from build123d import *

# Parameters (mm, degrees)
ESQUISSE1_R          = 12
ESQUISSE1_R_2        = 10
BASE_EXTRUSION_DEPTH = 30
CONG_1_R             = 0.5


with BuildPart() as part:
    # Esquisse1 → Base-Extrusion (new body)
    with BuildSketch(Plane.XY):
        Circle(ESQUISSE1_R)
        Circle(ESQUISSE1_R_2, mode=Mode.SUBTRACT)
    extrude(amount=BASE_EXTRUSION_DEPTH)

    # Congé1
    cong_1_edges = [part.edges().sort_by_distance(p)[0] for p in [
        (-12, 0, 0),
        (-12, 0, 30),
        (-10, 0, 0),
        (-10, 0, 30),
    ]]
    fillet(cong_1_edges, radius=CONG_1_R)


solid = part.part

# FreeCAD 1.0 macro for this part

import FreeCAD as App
import Part
import Sketcher
from FreeCAD import Vector
Q = App.Units.Quantity


def edges_at(feature, points):
    """Names of the edges that pass closest to the given points."""
    edges = feature.Shape.Edges
    near = lambda p: min(range(len(edges)), key=lambda i: edges[i].distToShape(Part.Vertex(*p))[0])
    return sorted({f"Edge{near(p) + 1}" for p in points})

doc = App.newDocument("Part")
body = doc.addObject("PartDesign::Body", "Body")

# Sketch on XY plane
sketch1 = doc.addObject("Sketcher::SketchObject", "Sketch")
body.addObject(sketch1)
sketch1.AttachmentSupport = (doc.XY_Plane, [""])
sketch1.MapMode = "FlatFace"
sketch1.addGeometry([
    Part.Circle(Vector(0, 0, 0), Vector(0, 0, 1), 12),
    Part.Circle(Vector(0, 0, 0), Vector(0, 0, 1), 10),
], False)
sketch1.addConstraint([
    Sketcher.Constraint("Coincident", 0, 3, -1, 1),
    Sketcher.Constraint("Coincident", 1, 3, -1, 1),
    Sketcher.Constraint("Diameter", 0, Q("24 mm")),
    Sketcher.Constraint("Diameter", 1, Q("20 mm")),
])
pad1 = doc.addObject("PartDesign::Pad", "Pad")
body.addObject(pad1)
pad1.Profile = sketch1
pad1.Length = 30
doc.recompute()

fillet = doc.addObject("PartDesign::Fillet", "Fillet")
body.addObject(fillet)
fillet.Base = (pad1, edges_at(pad1, [
    (-12, 0, 0),
    (-12, 0, 30),
    (-10, 0, 0),
    (-10, 0, 30),
]))
fillet.Radius = 0.5

doc.recompute()
